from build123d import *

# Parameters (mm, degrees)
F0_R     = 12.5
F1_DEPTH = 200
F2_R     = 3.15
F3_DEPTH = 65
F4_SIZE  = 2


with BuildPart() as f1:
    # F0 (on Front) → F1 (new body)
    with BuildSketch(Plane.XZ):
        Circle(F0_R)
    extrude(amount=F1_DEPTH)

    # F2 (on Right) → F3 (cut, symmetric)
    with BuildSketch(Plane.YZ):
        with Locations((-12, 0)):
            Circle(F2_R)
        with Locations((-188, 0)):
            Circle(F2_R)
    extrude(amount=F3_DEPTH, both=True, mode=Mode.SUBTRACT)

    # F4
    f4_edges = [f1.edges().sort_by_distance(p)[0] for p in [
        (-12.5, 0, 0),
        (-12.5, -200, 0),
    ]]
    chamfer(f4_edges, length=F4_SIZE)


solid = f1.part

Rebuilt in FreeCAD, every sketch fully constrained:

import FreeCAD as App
import Part
import Sketcher
from FreeCAD import Vector


def edges_at(feature, points):
    """Names of the edges that pass closest to the given points."""
    edges = feature.Shape.Edges
    near = lambda p: min(range(len(edges)), key=lambda i: edges[i].distToShape(Part.Vertex(*p))[0])
    return sorted({f"Edge{near(p) + 1}" for p in points})

doc = App.newDocument("Part")
body = doc.addObject("PartDesign::Body", "Body")

sketch1 = body.newObject("Sketcher::SketchObject", "Sketch")
sketch1.AttachmentSupport = (doc.getObject("XZ_Plane"), [""])
sketch1.MapMode = "FlatFace"
sketch1.addGeometry(Part.Circle(Vector(0, 0, 0), Vector(0, 0, 1), 12), False)
sketch1.addConstraint(Sketcher.Constraint("Coincident", 0, 3, -1, 1))
sketch1.addConstraint(Sketcher.Constraint("Diameter", 0, 25.0))
pad1 = body.newObject("PartDesign::Pad", "Pad")
pad1.Profile = sketch1
pad1.Length = 200

sketch2 = body.newObject("Sketcher::SketchObject", "Sketch001")
sketch2.AttachmentSupport = (doc.getObject("YZ_Plane"), [""])
sketch2.MapMode = "FlatFace"
sketch2.addGeometry(Part.Circle(Vector(-12, 0, 0), Vector(0, 0, 1), 3.1), False)
sketch2.addGeometry(Part.Circle(Vector(-188, 0, 0), Vector(0, 0, 1), 3.1), False)
sketch2.addConstraint(Sketcher.Constraint("Equal", 0, 1))
sketch2.addConstraint(Sketcher.Constraint("PointOnObject", 0, 3, -1))
sketch2.addConstraint(Sketcher.Constraint("PointOnObject", 1, 3, -1))
sketch2.addConstraint(Sketcher.Constraint("Diameter", 0, 6.3))
sketch2.addConstraint(Sketcher.Constraint("DistanceX", 0, 3, -1, 1, 12.0))
sketch2.addConstraint(Sketcher.Constraint("DistanceX", 1, 3, -1, 1, 188.0))
pocket1 = body.newObject("PartDesign::Pocket", "Pocket")
pocket1.Profile = sketch2
pocket1.Length = 130
pocket1.Midplane = True
doc.recompute()

chamfer = body.newObject("PartDesign::Chamfer", "Chamfer")
chamfer.Base = (pocket1, edges_at(pocket1, [(-12.5, 0, 0), (-12.5, -200, 0)]))
chamfer.Size = 2

doc.recompute()
